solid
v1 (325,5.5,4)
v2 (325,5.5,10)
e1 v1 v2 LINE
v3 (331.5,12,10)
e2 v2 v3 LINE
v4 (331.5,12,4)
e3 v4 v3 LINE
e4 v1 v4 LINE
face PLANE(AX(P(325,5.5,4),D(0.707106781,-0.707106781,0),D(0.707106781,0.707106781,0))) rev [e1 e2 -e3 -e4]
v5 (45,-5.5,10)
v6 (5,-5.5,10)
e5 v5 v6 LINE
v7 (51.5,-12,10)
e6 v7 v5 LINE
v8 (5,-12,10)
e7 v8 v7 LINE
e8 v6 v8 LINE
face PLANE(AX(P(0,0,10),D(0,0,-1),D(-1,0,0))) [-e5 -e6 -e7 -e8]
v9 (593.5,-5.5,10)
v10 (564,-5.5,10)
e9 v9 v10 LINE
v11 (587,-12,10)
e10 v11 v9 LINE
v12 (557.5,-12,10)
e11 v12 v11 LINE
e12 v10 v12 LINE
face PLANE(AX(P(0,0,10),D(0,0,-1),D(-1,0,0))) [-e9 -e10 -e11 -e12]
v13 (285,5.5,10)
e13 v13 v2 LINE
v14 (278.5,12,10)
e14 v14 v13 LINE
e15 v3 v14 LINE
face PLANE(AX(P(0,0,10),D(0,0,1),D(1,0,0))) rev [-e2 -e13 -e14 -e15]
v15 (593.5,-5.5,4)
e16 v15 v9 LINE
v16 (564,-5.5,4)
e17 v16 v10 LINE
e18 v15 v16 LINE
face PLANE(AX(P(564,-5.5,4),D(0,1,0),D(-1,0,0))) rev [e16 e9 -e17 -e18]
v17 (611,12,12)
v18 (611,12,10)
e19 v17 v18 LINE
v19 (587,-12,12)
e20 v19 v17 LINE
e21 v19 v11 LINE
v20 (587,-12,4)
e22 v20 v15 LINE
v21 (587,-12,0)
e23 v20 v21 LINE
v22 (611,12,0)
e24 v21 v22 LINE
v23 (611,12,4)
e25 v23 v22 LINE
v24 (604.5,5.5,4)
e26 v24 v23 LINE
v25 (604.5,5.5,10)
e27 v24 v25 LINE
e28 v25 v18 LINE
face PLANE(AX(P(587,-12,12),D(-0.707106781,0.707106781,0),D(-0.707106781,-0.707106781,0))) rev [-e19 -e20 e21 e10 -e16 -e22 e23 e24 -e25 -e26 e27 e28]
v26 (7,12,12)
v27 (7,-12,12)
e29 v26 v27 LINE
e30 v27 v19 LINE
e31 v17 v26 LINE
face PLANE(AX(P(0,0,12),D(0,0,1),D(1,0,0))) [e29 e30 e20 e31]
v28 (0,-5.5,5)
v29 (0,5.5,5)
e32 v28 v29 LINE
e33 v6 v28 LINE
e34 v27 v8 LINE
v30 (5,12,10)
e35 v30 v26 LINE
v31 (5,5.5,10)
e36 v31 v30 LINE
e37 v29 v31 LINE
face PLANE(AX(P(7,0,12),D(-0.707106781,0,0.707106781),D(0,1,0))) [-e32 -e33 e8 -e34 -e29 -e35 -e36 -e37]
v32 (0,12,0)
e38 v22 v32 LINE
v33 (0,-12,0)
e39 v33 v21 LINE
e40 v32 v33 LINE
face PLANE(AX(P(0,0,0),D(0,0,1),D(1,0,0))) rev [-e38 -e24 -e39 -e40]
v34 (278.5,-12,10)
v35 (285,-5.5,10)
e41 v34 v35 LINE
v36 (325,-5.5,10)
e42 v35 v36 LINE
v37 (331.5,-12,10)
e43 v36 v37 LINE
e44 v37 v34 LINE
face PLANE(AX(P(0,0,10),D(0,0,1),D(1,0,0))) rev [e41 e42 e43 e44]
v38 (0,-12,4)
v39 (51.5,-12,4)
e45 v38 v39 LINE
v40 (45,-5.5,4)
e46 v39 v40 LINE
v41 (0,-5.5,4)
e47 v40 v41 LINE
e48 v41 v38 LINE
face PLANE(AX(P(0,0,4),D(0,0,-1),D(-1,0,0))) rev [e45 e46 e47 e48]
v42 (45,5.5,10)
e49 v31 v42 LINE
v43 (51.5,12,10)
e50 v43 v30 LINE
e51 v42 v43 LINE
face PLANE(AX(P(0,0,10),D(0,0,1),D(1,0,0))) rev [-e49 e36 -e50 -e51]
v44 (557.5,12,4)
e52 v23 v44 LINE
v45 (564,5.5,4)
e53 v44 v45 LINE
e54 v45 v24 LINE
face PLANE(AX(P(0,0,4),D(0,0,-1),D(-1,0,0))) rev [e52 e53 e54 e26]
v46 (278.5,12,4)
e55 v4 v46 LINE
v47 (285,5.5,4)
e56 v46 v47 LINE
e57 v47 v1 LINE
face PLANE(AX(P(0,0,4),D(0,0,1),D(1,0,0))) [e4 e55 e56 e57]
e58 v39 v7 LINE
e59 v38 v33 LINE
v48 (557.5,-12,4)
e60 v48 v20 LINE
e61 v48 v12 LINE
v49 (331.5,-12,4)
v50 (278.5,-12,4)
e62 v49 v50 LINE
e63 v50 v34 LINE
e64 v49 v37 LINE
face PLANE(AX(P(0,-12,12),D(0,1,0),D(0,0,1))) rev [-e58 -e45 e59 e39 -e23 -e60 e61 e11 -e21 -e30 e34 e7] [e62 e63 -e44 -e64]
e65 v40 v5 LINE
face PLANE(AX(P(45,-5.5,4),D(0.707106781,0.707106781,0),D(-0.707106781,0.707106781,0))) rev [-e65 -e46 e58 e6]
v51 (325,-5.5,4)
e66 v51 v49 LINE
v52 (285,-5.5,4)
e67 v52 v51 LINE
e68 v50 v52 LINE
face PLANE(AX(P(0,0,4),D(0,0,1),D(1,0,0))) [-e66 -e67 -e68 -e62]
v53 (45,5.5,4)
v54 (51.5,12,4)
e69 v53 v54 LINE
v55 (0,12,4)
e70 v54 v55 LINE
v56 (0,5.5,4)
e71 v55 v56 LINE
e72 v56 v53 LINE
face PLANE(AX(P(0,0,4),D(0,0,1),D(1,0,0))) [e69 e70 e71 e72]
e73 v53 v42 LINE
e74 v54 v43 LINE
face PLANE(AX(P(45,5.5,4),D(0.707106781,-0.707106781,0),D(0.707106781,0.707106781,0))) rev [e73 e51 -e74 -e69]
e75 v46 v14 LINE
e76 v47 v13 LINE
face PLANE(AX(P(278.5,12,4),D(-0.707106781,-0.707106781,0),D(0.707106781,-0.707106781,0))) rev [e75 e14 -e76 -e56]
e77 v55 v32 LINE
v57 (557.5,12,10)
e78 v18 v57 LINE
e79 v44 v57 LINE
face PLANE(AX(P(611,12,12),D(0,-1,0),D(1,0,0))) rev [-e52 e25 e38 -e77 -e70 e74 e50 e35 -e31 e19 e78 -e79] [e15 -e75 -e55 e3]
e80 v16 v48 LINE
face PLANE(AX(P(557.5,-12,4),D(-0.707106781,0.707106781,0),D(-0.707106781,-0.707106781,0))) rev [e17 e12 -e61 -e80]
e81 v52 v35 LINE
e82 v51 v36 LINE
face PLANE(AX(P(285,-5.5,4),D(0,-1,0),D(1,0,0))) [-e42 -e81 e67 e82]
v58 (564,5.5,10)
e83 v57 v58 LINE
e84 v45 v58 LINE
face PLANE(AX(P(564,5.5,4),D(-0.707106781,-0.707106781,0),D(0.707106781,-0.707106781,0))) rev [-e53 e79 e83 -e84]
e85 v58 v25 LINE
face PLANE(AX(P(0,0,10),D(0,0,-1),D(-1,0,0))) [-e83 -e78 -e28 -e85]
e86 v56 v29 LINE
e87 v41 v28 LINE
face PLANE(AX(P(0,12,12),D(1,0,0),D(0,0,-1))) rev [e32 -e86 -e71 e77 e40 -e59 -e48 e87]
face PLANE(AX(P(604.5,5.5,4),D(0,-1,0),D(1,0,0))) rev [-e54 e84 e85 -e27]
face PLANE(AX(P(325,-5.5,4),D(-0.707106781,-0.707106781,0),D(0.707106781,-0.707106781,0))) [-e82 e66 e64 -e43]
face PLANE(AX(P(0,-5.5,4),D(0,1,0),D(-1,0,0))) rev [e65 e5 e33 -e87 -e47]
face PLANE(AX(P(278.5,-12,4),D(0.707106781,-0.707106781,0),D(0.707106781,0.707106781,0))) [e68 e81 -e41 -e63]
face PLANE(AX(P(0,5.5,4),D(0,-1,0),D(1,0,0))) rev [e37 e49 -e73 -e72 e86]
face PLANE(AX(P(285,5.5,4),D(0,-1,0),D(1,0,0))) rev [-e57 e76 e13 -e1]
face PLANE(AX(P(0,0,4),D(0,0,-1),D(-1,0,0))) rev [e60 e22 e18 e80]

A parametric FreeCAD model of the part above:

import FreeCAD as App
import Part
import Sketcher
from FreeCAD import Vector
Q = App.Units.Quantity


def edges_at(feature, points):
    """Names of the edges that pass closest to the given points."""
    edges = feature.Shape.Edges
    near = lambda p: min(range(len(edges)), key=lambda i: edges[i].distToShape(Part.Vertex(*p))[0])
    return sorted({f"Edge{near(p) + 1}" for p in points})

doc = App.newDocument("Part")
params = doc.addObject("Spreadsheet::Sheet", "Params")
for row, (alias, value) in enumerate([
    ("sketch1_width", "587 mm"),
    ("sketch1_width2", "611 mm"),
    ("sketch1_height", "24 mm"),
    ("pad1_length", "12 mm"),
    ("sketch2_width", "40 mm"),
    ("sketch2_width2", "53 mm"),
    ("pocket1_length", "6 mm"),
    ("chamfer_size", "7 mm"),
    ("sketch3_width", "45 mm"),
    ("sketch3_width2", "29.5 mm"),
    ("sketch3_width3", "53.5 mm"),
    ("sketch3_width4", "40.5 mm"),
    ("pocket2_length", "6 mm"),
], start=1):
    params.set(f"A{row}", alias)
    params.set(f"B{row}", "=" + value)
    params.setAlias(f"B{row}", alias)

body = doc.addObject("PartDesign::Body", "Body")

# Sketch on XY plane
sketch1 = doc.addObject("Sketcher::SketchObject", "Sketch")
body.addObject(sketch1)
sketch1.AttachmentSupport = (doc.XY_Plane, [""])
sketch1.MapMode = "FlatFace"
sketch1.addGeometry([
    Part.LineSegment(Vector(0, 12, 0), Vector(0, -12, 0)),
    Part.LineSegment(Vector(0, -12, 0), Vector(587, -12, 0)),
    Part.LineSegment(Vector(587, -12, 0), Vector(611, 12, 0)),
    Part.LineSegment(Vector(611, 12, 0), Vector(0, 12, 0)),
], False)
sketch1.addConstraint([
    Sketcher.Constraint("Coincident", 0, 2, 1, 1),
    Sketcher.Constraint("Coincident", 1, 2, 2, 1),
    Sketcher.Constraint("Coincident", 2, 2, 3, 1),
    Sketcher.Constraint("Coincident", 3, 2, 0, 1),
    Sketcher.Constraint("Vertical", 0),
    Sketcher.Constraint("Horizontal", 1),
    Sketcher.Constraint("Horizontal", 3),
    Sketcher.Constraint("Symmetric", 0, 2, 3, 2, -1, 1),
    Sketcher.Constraint("DistanceX", 1, 1, 1, 2, Q("587 mm")),
    Sketcher.Constraint("DistanceX", 3, 2, 3, 1, Q("611 mm")),
    Sketcher.Constraint("DistanceY", 0, 2, 0, 1, Q("24 mm")),
])
sketch1.setExpression("Constraints[8]", "Params.sketch1_width")
sketch1.setExpression("Constraints[9]", "Params.sketch1_width2")
sketch1.setExpression("Constraints[10]", "Params.sketch1_height")
pad1 = doc.addObject("PartDesign::Pad", "Pad")
body.addObject(pad1)
pad1.Profile = sketch1
pad1.setExpression("Length", "Params.pad1_length")

# Sketch on XY plane
sketch2 = doc.addObject("Sketcher::SketchObject", "Sketch001")
body.addObject(sketch2)
sketch2.AttachmentSupport = (doc.XY_Plane, [""])
sketch2.MapMode = "FlatFace"
sketch2.AttachmentOffset = App.Placement(Vector(0, 0, 10), App.Rotation())
sketch2.addGeometry([
    Part.LineSegment(Vector(278, 12, 0), Vector(285, 6, 0)),
    Part.LineSegment(Vector(285, 6, 0), Vector(325, 6, 0)),
    Part.LineSegment(Vector(325, 6, 0), Vector(332, 12, 0)),
    Part.LineSegment(Vector(332, 12, 0), Vector(278, 12, 0)),
], False)
sketch2.addConstraint([
    Sketcher.Constraint("Coincident", 0, 2, 1, 1),
    Sketcher.Constraint("Coincident", 1, 2, 2, 1),
    Sketcher.Constraint("Coincident", 2, 2, 3, 1),
    Sketcher.Constraint("Coincident", 3, 2, 0, 1),
    Sketcher.Constraint("Horizontal", 1),
    Sketcher.Constraint("Horizontal", 3),
    Sketcher.Constraint("Perpendicular", 0, 2),
    Sketcher.Constraint("Equal", 0, 2),
    Sketcher.Constraint("DistanceX", 1, 1, 1, 2, Q("40 mm")),
    Sketcher.Constraint("DistanceX", 3, 2, 3, 1, Q("53 mm")),
    Sketcher.Constraint("DistanceX", -1, 1, 0, 2, Q("285 mm")),
    Sketcher.Constraint("DistanceY", -1, 1, 2, 2, Q("12 mm")),
])
sketch2.setExpression("Constraints[8]", "Params.sketch2_width")
sketch2.setExpression("Constraints[9]", "Params.sketch2_width2")
pocket1 = doc.addObject("PartDesign::Pocket", "Pocket")
body.addObject(pocket1)
pocket1.Profile = sketch2
pocket1.setExpression("Length", "Params.pocket1_length")
doc.recompute()

chamfer = doc.addObject("PartDesign::Chamfer", "Chamfer")
body.addObject(chamfer)
chamfer.Base = (pocket1, edges_at(pocket1, [(0, 0, 12)]))
chamfer.setExpression("Size", "Params.chamfer_size")
doc.recompute()

mirrored = doc.addObject("PartDesign::Mirrored", "Mirrored")
body.addObject(mirrored)
mirrored.Originals = [pocket1]
mirrored.MirrorPlane = (doc.XZ_Plane, [""])
body.Tip = mirrored

# Sketch on XY plane
sketch3 = doc.addObject("Sketcher::SketchObject", "Sketch002")
body.addObject(sketch3)
sketch3.AttachmentSupport = (doc.XY_Plane, [""])
sketch3.MapMode = "FlatFace"
sketch3.AttachmentOffset = App.Placement(Vector(0, 0, 10), App.Rotation())
sketch3.addGeometry([
    Part.LineSegment(Vector(587, -12, 0), Vector(594, -6, 0)),  # 0
    Part.LineSegment(Vector(594, -6, 0), Vector(564, -6, 0)),  # 1
    Part.LineSegment(Vector(564, -6, 0), Vector(558, -12, 0)),  # 2
    Part.LineSegment(Vector(558, -12, 0), Vector(587, -12, 0)),  # 3
    Part.LineSegment(Vector(604, 6, 0), Vector(611, 12, 0)),  # 4
    Part.LineSegment(Vector(611, 12, 0), Vector(558, 12, 0)),  # 5
    Part.LineSegment(Vector(558, 12, 0), Vector(564, 6, 0)),  # 6
    Part.LineSegment(Vector(564, 6, 0), Vector(604, 6, 0)),  # 7
    Part.LineSegment(Vector(0, 12, 0), Vector(0, 6, 0)),  # 8
    Part.LineSegment(Vector(0, 6, 0), Vector(45, 6, 0)),  # 9
    Part.LineSegment(Vector(45, 6, 0), Vector(52, 12, 0)),  # 10
    Part.LineSegment(Vector(52, 12, 0), Vector(0, 12, 0)),  # 11
    Part.LineSegment(Vector(0, -6, 0), Vector(0, -12, 0)),  # 12
    Part.LineSegment(Vector(0, -12, 0), Vector(52, -12, 0)),  # 13
    Part.LineSegment(Vector(52, -12, 0), Vector(45, -6, 0)),  # 14
    Part.LineSegment(Vector(45, -6, 0), Vector(0, -6, 0)),  # 15
], False)
sketch3.addConstraint([
    Sketcher.Constraint("Coincident", 0, 2, 1, 1),
    Sketcher.Constraint("Coincident", 1, 2, 2, 1),
    Sketcher.Constraint("Coincident", 2, 2, 3, 1),
    Sketcher.Constraint("Coincident", 3, 2, 0, 1),
    Sketcher.Constraint("Coincident", 4, 2, 5, 1),
    Sketcher.Constraint("Coincident", 5, 2, 6, 1),
    Sketcher.Constraint("Coincident", 6, 2, 7, 1),
    Sketcher.Constraint("Coincident", 7, 2, 4, 1),
    Sketcher.Constraint("Coincident", 8, 2, 9, 1),
    Sketcher.Constraint("Coincident", 9, 2, 10, 1),
    Sketcher.Constraint("Coincident", 10, 2, 11, 1),
    Sketcher.Constraint("Coincident", 11, 2, 8, 1),
    Sketcher.Constraint("Coincident", 12, 2, 13, 1),
    Sketcher.Constraint("Coincident", 13, 2, 14, 1),
    Sketcher.Constraint("Coincident", 14, 2, 15, 1),
    Sketcher.Constraint("Coincident", 15, 2, 12, 1),
    Sketcher.Constraint("Horizontal", 1),
    Sketcher.Constraint("Horizontal", 3),
    Sketcher.Constraint("Horizontal", 5),
    Sketcher.Constraint("Horizontal", 7),
    Sketcher.Constraint("Vertical", 8),
    Sketcher.Constraint("Horizontal", 9),
    Sketcher.Constraint("Horizontal", 11),
    Sketcher.Constraint("Vertical", 12),
    Sketcher.Constraint("Horizontal", 13),
    Sketcher.Constraint("Horizontal", 15),
    Sketcher.Constraint("Symmetric", 11, 2, 12, 2, -1, 1),
    Sketcher.Constraint("Symmetric", 2, 2, 5, 2, -1),
    Sketcher.Constraint("Symmetric", 1, 2, 6, 2, -1),
    Sketcher.Constraint("Symmetric", 9, 2, 14, 2, -1),
    Sketcher.Constraint("PointOnObject", 8, 2, -2),
    Sketcher.Constraint("Parallel", 0, 2),
    Sketcher.Constraint("Parallel", 2, 4),
    Sketcher.Constraint("Perpendicular", 4, 6),
    Sketcher.Constraint("Perpendicular", 6, 10),
    Sketcher.Constraint("Perpendicular", 10, 14),
    Sketcher.Constraint("Horizontal", 7, 2, 8, 2),
    Sketcher.Constraint("Horizontal", 5, 2, 10, 2),
    Sketcher.Constraint("DistanceX", 9, 1, 9, 2, Q("45 mm")),
    Sketcher.Constraint("DistanceX", 1, 2, 1, 1, Q("29.5 mm")),
    Sketcher.Constraint("DistanceX", 5, 2, 5, 1, Q("53.5 mm")),
    Sketcher.Constraint("DistanceX", 7, 1, 7, 2, Q("40.5 mm")),
    Sketcher.Constraint("DistanceX", -1, 1, 1, 2, Q("564 mm")),
    Sketcher.Constraint("DistanceY", 2, 2, -1, 1, Q("12 mm")),
])
sketch3.setExpression("Constraints[38]", "Params.sketch3_width")
sketch3.setExpression("Constraints[39]", "Params.sketch3_width2")
sketch3.setExpression("Constraints[40]", "Params.sketch3_width3")
sketch3.setExpression("Constraints[41]", "Params.sketch3_width4")
pocket2 = doc.addObject("PartDesign::Pocket", "Pocket001")
body.addObject(pocket2)
pocket2.Profile = sketch3
pocket2.setExpression("Length", "Params.pocket2_length")

doc.recompute()
